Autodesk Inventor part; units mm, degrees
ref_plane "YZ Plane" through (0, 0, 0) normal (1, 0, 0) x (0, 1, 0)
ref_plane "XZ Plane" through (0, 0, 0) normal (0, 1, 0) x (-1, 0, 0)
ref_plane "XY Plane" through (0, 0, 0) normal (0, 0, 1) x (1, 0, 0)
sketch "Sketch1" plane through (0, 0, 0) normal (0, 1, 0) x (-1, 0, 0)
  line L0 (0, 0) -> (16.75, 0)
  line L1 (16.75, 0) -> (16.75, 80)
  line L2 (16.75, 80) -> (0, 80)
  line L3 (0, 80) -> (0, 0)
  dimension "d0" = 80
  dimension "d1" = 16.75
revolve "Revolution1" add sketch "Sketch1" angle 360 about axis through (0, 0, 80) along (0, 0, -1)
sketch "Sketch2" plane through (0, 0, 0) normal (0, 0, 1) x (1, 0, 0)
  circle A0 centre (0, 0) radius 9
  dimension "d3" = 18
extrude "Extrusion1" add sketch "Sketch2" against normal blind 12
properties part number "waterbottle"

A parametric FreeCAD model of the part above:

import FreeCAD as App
import Part
import Sketcher
from FreeCAD import Vector
Q = App.Units.Quantity

doc = App.newDocument("Part")
params = doc.addObject("Spreadsheet::Sheet", "Params")
for row, (alias, value) in enumerate([
    ("sketch1_height", "80 mm"),
    ("sketch1_width", "16.75 mm"),
    ("revolution_angle", "360 deg"),
    ("sketch2_diameter", "18 mm"),
    ("pad1_length", "12 mm"),
], start=1):
    params.set(f"A{row}", alias)
    params.set(f"B{row}", "=" + value)
    params.setAlias(f"B{row}", alias)

body = doc.addObject("PartDesign::Body", "Body")

# Sketch on XZ plane
sketch1 = body.newObject("Sketcher::SketchObject", "Sketch")
sketch1.AttachmentSupport = (doc.getObject("XZ_Plane"), [""])
sketch1.MapMode = "FlatFace"
sketch1.addGeometry(Part.LineSegment(Vector(0, 80, 0), Vector(0, 0, 0)), False)
sketch1.addGeometry(Part.LineSegment(Vector(0, 0, 0), Vector(-17, 0, 0)), False)
sketch1.addGeometry(Part.LineSegment(Vector(-17, 0, 0), Vector(-17, 80, 0)), False)
sketch1.addGeometry(Part.LineSegment(Vector(-17, 80, 0), Vector(0, 80, 0)), False)
sketch1.addConstraint(Sketcher.Constraint("Coincident", 0, 2, 1, 1))
sketch1.addConstraint(Sketcher.Constraint("Coincident", 1, 2, 2, 1))
sketch1.addConstraint(Sketcher.Constraint("Coincident", 2, 2, 3, 1))
sketch1.addConstraint(Sketcher.Constraint("Coincident", 3, 2, 0, 1))
sketch1.addConstraint(Sketcher.Constraint("Vertical", 0))
sketch1.addConstraint(Sketcher.Constraint("Horizontal", 1))
sketch1.addConstraint(Sketcher.Constraint("Vertical", 2))
sketch1.addConstraint(Sketcher.Constraint("Horizontal", 3))
sketch1.addConstraint(Sketcher.Constraint("Coincident", 0, 2, -1, 1))
sketch1.addConstraint(Sketcher.Constraint("DistanceY", 0, 2, 0, 1, Q("80 mm")))
sketch1.addConstraint(Sketcher.Constraint("DistanceX", 1, 2, 1, 1, Q("16.75 mm")))
sketch1.setExpression("Constraints[9]", "Params.sketch1_height")
sketch1.setExpression("Constraints[10]", "Params.sketch1_width")
revolution = body.newObject("PartDesign::Revolution", "Revolution")
revolution.Profile = sketch1
revolution.ReferenceAxis = (sketch1, ["V_Axis"])
revolution.setExpression("Angle", "Params.revolution_angle")

# Sketch on XY plane
sketch2 = body.newObject("Sketcher::SketchObject", "Sketch001")
sketch2.AttachmentSupport = (doc.getObject("XY_Plane"), [""])
sketch2.MapMode = "FlatFace"
sketch2.addGeometry(Part.Circle(Vector(0, 0, 0), Vector(0, 0, 1), 9), False)
sketch2.addConstraint(Sketcher.Constraint("Coincident", 0, 3, -1, 1))
sketch2.addConstraint(Sketcher.Constraint("Diameter", 0, Q("18 mm")))
sketch2.setExpression("Constraints[1]", "Params.sketch2_diameter")
pad1 = body.newObject("PartDesign::Pad", "Pad")
pad1.Profile = sketch2
pad1.setExpression("Length", "Params.pad1_length")
pad1.Reversed = True

doc.recompute()
